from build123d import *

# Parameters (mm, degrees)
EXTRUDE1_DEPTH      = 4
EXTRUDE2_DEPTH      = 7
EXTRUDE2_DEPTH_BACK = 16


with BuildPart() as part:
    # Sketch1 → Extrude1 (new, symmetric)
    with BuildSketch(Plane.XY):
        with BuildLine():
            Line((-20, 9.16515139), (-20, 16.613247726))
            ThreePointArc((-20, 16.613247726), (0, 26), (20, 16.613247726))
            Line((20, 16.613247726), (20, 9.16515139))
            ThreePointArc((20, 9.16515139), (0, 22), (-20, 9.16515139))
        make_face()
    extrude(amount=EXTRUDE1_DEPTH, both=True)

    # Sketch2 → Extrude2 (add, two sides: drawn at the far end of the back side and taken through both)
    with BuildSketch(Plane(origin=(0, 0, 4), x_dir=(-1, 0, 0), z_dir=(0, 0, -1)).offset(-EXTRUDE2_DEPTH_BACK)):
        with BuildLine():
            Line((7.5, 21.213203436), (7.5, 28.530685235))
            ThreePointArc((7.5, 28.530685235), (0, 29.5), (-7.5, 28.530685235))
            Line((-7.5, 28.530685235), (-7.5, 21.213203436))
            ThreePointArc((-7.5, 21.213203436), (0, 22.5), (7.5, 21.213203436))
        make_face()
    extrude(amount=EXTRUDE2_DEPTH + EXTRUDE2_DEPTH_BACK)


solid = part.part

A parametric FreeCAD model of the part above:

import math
import FreeCAD as App
import Part
import Sketcher

V = App.Vector
Q = App.Units.Quantity

doc = App.newDocument("Part")
body = doc.addObject("PartDesign::Body", "Body")

sketch1 = body.newObject("Sketcher::SketchObject", "Sketch")
sketch1.AttachmentSupport = (doc.getObject("XY_Plane"), [""])
sketch1.MapMode = "FlatFace"
sketch1.addGeometry([
    Part.LineSegment(V(-20, 17, 0), V(-20, 9, 0)),
    Part.ArcOfCircle(Part.Circle(V(0, 0, 0), V(0, 0, 1), 22), math.radians(25), math.radians(155)),
    Part.LineSegment(V(20, 9, 0), V(20, 17, 0)),
    Part.ArcOfCircle(Part.Circle(V(0, 0, 0), V(0, 0, 1), 26), math.radians(40), math.radians(140)),
], False)
sketch1.addConstraint([
    Sketcher.Constraint("Coincident", 0, 2, 1, 2),
    Sketcher.Constraint("Coincident", 1, 1, 2, 1),
    Sketcher.Constraint("Coincident", 2, 2, 3, 1),
    Sketcher.Constraint("Coincident", 3, 2, 0, 1),
    Sketcher.Constraint("Vertical", 0),
    Sketcher.Constraint("Vertical", 2),
    Sketcher.Constraint("Coincident", 1, 3, -1, 1),
    Sketcher.Constraint("Coincident", 3, 3, -1, 1),
    Sketcher.Constraint("Horizontal", 0, 2, 1, 1),
    Sketcher.Constraint("Radius", 1, Q("22 mm")),
    Sketcher.Constraint("Radius", 3, Q("26 mm")),
    Sketcher.Constraint("DistanceX", 0, 2, -1, 1, Q("20 mm")),
])
pad1 = body.newObject("PartDesign::Pad", "Pad")
pad1.Profile = sketch1
pad1.Length = 8
pad1.Midplane = True

sketch2 = body.newObject("Sketcher::SketchObject", "Sketch001")
sketch2.AttachmentSupport = (doc.getObject("XY_Plane"), [""])
sketch2.MapMode = "FlatFace"
sketch2.AttachmentOffset = App.Placement(V(0, 0, 4), App.Rotation())
sketch2.addGeometry([
    Part.LineSegment(V(-8, 21, 0), V(-8, 29, 0)),
    Part.ArcOfCircle(Part.Circle(V(0, 0, 0), V(0, 0, 1), 29), math.radians(75), math.radians(105)),
    Part.LineSegment(V(8, 29, 0), V(8, 21, 0)),
    Part.ArcOfCircle(Part.Circle(V(0, 0, 0), V(0, 0, 1), 23), math.radians(71), math.radians(109)),
], False)
sketch2.addConstraint([
    Sketcher.Constraint("Coincident", 0, 2, 1, 2),
    Sketcher.Constraint("Coincident", 1, 1, 2, 1),
    Sketcher.Constraint("Coincident", 2, 2, 3, 1),
    Sketcher.Constraint("Coincident", 3, 2, 0, 1),
    Sketcher.Constraint("Vertical", 0),
    Sketcher.Constraint("Vertical", 2),
    Sketcher.Constraint("Coincident", 1, 3, -1, 1),
    Sketcher.Constraint("Coincident", 3, 3, -1, 1),
    Sketcher.Constraint("Horizontal", 0, 2, 1, 1),
    Sketcher.Constraint("Radius", 1, Q("29.5 mm")),
    Sketcher.Constraint("Radius", 3, Q("22.5 mm")),
    Sketcher.Constraint("DistanceX", 0, 2, 1, 1, Q("15 mm")),
])
pad2 = body.newObject("PartDesign::Pad", "Pad001")
pad2.Profile = sketch2
pad2.Type = "TwoLengths"
pad2.Length = 7
pad2.Length2 = 16
pad2.Reversed = True

doc.recompute()
